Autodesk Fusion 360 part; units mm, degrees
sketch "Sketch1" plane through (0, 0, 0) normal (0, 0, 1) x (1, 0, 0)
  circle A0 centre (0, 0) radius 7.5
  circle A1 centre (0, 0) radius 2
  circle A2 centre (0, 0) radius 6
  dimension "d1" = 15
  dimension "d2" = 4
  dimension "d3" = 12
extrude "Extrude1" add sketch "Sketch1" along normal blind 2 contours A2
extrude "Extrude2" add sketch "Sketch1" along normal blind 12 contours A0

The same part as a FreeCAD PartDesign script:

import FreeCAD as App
import Part
import Sketcher
from FreeCAD import Vector
Q = App.Units.Quantity

doc = App.newDocument("Part")
body = doc.addObject("PartDesign::Body", "Body")

# Sketch on XY plane
sketch1 = doc.addObject("Sketcher::SketchObject", "Sketch")
body.addObject(sketch1)
sketch1.AttachmentSupport = (doc.XY_Plane, [""])
sketch1.MapMode = "FlatFace"
sketch1.addGeometry([
    Part.Circle(Vector(0, 0, 0), Vector(0, 0, 1), 6),
    Part.Circle(Vector(0, 0, 0), Vector(0, 0, 1), 2),
], False)
sketch1.addConstraint([
    Sketcher.Constraint("Coincident", 0, 3, -1, 1),
    Sketcher.Constraint("Coincident", 1, 3, -1, 1),
    Sketcher.Constraint("Diameter", 0, Q("12 mm")),
    Sketcher.Constraint("Diameter", 1, Q("4 mm")),
])
pad1 = doc.addObject("PartDesign::Pad", "Pad")
body.addObject(pad1)
pad1.Profile = sketch1
pad1.Length = 2

# Sketch on XY plane
sketch2 = doc.addObject("Sketcher::SketchObject", "Sketch001")
body.addObject(sketch2)
sketch2.AttachmentSupport = (doc.XY_Plane, [""])
sketch2.MapMode = "FlatFace"
sketch2.addGeometry([
    Part.Circle(Vector(0, 0, 0), Vector(0, 0, 1), 7.5),
    Part.Circle(Vector(0, 0, 0), Vector(0, 0, 1), 6),
], False)
sketch2.addConstraint([
    Sketcher.Constraint("Coincident", 0, 3, -1, 1),
    Sketcher.Constraint("Coincident", 1, 3, -1, 1),
    Sketcher.Constraint("Diameter", 0, Q("15 mm")),
    Sketcher.Constraint("Diameter", 1, Q("12 mm")),
])
pad2 = doc.addObject("PartDesign::Pad", "Pad001")
body.addObject(pad2)
pad2.Profile = sketch2
pad2.Length = 12

doc.recompute()
